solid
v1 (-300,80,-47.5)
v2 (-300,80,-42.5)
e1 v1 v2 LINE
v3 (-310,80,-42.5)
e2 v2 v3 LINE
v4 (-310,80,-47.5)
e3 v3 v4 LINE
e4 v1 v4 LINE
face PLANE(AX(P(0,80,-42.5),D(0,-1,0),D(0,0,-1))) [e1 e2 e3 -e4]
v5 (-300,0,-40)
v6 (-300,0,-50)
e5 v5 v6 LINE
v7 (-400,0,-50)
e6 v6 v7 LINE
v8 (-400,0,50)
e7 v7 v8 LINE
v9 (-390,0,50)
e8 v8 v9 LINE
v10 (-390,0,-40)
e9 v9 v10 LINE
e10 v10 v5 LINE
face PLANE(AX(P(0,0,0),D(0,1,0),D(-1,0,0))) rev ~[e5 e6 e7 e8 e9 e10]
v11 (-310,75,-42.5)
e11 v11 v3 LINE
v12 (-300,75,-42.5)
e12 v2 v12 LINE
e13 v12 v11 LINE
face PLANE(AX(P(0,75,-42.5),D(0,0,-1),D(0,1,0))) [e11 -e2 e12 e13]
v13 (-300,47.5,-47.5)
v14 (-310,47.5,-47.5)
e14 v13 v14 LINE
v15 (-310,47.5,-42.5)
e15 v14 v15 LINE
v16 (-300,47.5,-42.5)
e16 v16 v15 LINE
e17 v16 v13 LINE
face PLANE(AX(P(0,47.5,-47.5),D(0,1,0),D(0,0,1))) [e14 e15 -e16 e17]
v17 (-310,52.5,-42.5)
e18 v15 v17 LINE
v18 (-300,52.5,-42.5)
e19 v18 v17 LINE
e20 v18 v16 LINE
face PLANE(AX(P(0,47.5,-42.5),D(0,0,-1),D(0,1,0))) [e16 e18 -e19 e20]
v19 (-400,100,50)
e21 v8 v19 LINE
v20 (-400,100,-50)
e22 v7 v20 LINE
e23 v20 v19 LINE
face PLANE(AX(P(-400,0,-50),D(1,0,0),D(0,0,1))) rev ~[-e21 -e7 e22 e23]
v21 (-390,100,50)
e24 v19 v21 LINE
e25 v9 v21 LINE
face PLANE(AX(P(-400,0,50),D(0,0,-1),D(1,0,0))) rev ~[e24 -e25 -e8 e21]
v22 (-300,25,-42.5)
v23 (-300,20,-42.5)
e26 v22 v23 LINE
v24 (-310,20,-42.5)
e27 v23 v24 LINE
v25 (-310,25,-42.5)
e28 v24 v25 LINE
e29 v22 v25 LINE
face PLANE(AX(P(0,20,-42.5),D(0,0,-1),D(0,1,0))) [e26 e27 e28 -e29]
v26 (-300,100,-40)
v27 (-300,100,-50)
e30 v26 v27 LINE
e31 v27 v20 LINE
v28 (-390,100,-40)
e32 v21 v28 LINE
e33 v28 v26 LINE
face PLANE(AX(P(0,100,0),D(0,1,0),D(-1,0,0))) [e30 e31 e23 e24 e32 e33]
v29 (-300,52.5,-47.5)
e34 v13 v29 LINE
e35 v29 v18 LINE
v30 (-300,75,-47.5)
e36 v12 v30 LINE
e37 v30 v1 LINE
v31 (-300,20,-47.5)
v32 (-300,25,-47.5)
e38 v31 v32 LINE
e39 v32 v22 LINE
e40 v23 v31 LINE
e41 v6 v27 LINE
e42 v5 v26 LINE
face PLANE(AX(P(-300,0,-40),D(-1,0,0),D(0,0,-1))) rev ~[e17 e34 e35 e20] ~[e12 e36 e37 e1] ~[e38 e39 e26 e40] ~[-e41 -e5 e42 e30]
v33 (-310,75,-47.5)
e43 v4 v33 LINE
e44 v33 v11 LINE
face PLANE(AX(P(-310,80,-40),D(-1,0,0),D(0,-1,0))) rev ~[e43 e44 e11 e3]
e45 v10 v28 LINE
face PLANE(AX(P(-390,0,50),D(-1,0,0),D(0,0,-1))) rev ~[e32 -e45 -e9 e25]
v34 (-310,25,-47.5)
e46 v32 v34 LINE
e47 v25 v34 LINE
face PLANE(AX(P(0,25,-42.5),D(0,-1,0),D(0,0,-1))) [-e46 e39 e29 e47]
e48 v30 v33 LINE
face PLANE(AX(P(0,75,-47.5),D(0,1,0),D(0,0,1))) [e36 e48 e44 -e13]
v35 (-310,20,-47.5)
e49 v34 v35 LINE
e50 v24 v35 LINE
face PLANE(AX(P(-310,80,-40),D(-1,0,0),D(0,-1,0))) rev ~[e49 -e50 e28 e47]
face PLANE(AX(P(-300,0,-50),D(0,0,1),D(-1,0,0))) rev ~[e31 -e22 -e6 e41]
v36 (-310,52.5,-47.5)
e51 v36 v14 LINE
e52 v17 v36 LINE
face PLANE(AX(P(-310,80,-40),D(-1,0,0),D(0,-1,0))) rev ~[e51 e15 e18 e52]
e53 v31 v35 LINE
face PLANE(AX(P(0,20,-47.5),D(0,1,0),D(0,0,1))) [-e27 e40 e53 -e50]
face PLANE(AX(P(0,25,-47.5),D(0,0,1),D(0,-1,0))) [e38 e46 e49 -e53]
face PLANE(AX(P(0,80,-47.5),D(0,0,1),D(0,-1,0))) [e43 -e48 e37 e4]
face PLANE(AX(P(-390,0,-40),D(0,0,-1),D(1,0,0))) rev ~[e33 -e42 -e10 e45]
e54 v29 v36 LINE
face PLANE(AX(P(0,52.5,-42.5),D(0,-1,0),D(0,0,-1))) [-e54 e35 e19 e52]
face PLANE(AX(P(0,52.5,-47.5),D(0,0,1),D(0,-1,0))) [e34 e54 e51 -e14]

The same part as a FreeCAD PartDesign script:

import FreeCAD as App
import Part
import Sketcher
from FreeCAD import Vector


def add_polygon(sketch, points):
    """Adds a closed chain of lines whose ends are joined by coincident constraints."""
    first, n = sketch.GeometryCount, len(points)
    for a, b in zip(points, points[1:] + points[:1]):
        sketch.addGeometry(Part.LineSegment(App.Vector(*a, 0), App.Vector(*b, 0)), False)
    for i in range(n):
        sketch.addConstraint(Sketcher.Constraint("Coincident", first + i, 2, first + (i + 1) % n, 1))

doc = App.newDocument("Part")
body = doc.addObject("PartDesign::Body", "Body")
body.AllowCompound = True

# Sketch on XZ plane
sketch1 = body.newObject("Sketcher::SketchObject", "Sketch")
sketch1.AttachmentSupport = (doc.getObject("XZ_Plane"), [""])
sketch1.MapMode = "FlatFace"
add_polygon(sketch1, [(-300, -50), (-400, -50), (-400, 50), (-390, 50), (-390, -40), (-300, -40)])  # lines 0-5
add_polygon(sketch1, [(-150, -50), (-250, -50), (-250, -40), (-150, -40)])  # lines 6-9
add_polygon(sketch1, [(0, -50), (-100, -50), (-100, -40), (-10, -40), (-10, 50), (0, 50)])  # lines 10-15
sketch1.addConstraint([
    Sketcher.Constraint("Horizontal", 0),
    Sketcher.Constraint("Vertical", 1),
    Sketcher.Constraint("Horizontal", 2),
    Sketcher.Constraint("Vertical", 3),
    Sketcher.Constraint("Horizontal", 4),
    Sketcher.Constraint("Vertical", 5),
    Sketcher.Constraint("Horizontal", 6),
    Sketcher.Constraint("Vertical", 7),
    Sketcher.Constraint("Horizontal", 8),
    Sketcher.Constraint("Vertical", 9),
    Sketcher.Constraint("Horizontal", 10),
    Sketcher.Constraint("Vertical", 11),
    Sketcher.Constraint("Horizontal", 12),
    Sketcher.Constraint("Vertical", 13),
    Sketcher.Constraint("Horizontal", 14),
    Sketcher.Constraint("Vertical", 15),
    Sketcher.Constraint("Symmetric", 14, 2, 15, 2, -1, 1),
    Sketcher.Constraint("Horizontal", 5, 2, 6, 2),
    Sketcher.Constraint("Horizontal", 4, 2, 7, 2),
    Sketcher.Constraint("Horizontal", 9, 2, 10, 2),
    Sketcher.Constraint("Horizontal", 8, 2, 11, 2),
    Sketcher.Constraint("Horizontal", 2, 2, 13, 2),
    Sketcher.Constraint("Equal", 0, 6),
    Sketcher.Constraint("Equal", 8, 10),
    Sketcher.Constraint("Equal", 4, 12),
    Sketcher.Constraint("Equal", 10, 1),
    Sketcher.Constraint("Equal", 12, 3),
    Sketcher.Constraint("DistanceX", 0, 2, 0, 1, 100.0),
    Sketcher.Constraint("DistanceX", 2, 1, 2, 2, 10.0),
    Sketcher.Constraint("DistanceX", 0, 2, -1, 1, 400.0),
    Sketcher.Constraint("DistanceX", 5, 2, 6, 2, 50.0),
])
pad1 = body.newObject("PartDesign::Pad", "Pad")
pad1.Profile = sketch1
pad1.Length = 100
pad1.Reversed = True

# Sketch on YZ plane
sketch2 = body.newObject("Sketcher::SketchObject", "Sketch001")
sketch2.AttachmentSupport = (doc.getObject("YZ_Plane"), [""])
sketch2.MapMode = "FlatFace"
add_polygon(sketch2, [(80, -48), (80, -42), (75, -42), (75, -48)])  # lines 0-3
add_polygon(sketch2, [(20, -42), (20, -48), (25, -48), (25, -42)])  # lines 4-7
add_polygon(sketch2, [(52, -48), (52, -42), (48, -42), (48, -48)])  # lines 8-11
sketch2.addConstraint([
    Sketcher.Constraint("Vertical", 0),
    Sketcher.Constraint("Horizontal", 1),
    Sketcher.Constraint("Vertical", 2),
    Sketcher.Constraint("Horizontal", 3),
    Sketcher.Constraint("Vertical", 4),
    Sketcher.Constraint("Horizontal", 5),
    Sketcher.Constraint("Vertical", 6),
    Sketcher.Constraint("Horizontal", 7),
    Sketcher.Constraint("Vertical", 8),
    Sketcher.Constraint("Horizontal", 9),
    Sketcher.Constraint("Vertical", 10),
    Sketcher.Constraint("Horizontal", 11),
    Sketcher.Constraint("Horizontal", 3, 2, 4, 2),
    Sketcher.Constraint("Horizontal", 1, 2, 6, 2),
    Sketcher.Constraint("Horizontal", 7, 2, 8, 2),
    Sketcher.Constraint("Horizontal", 5, 2, 10, 2),
    Sketcher.Constraint("Equal", 3, 5),
    Sketcher.Constraint("Equal", 7, 9),
    Sketcher.Constraint("Equal", 11, 0),
    Sketcher.Constraint("DistanceX", 1, 2, 1, 1, 5.0),
    Sketcher.Constraint("DistanceX", -1, 1, 4, 2, 20.0),
    Sketcher.Constraint("DistanceX", 8, 2, 1, 2, 22.5),
    Sketcher.Constraint("DistanceX", 6, 2, 9, 2, 22.5),
    Sketcher.Constraint("DistanceY", 0, 2, -1, 1, 42.5),
])
pocket1 = body.newObject("PartDesign::Pocket", "Pocket")
pocket1.Profile = sketch2
pocket1.Length = 320

# Sketch on YZ plane
sketch3 = body.newObject("Sketcher::SketchObject", "Sketch002")
sketch3.AttachmentSupport = (doc.getObject("YZ_Plane"), [""])
sketch3.MapMode = "FlatFace"
add_polygon(sketch3, [(75, -42), (75, -48), (80, -48), (80, -42)])  # lines 0-3
add_polygon(sketch3, [(48, -42), (48, -48), (52, -48), (52, -42)])  # lines 4-7
add_polygon(sketch3, [(25, -48), (25, -42), (20, -42), (20, -48)])  # lines 8-11
sketch3.addConstraint([
    Sketcher.Constraint("Vertical", 0),
    Sketcher.Constraint("Horizontal", 1),
    Sketcher.Constraint("Vertical", 2),
    Sketcher.Constraint("Horizontal", 3),
    Sketcher.Constraint("Vertical", 4),
    Sketcher.Constraint("Horizontal", 5),
    Sketcher.Constraint("Vertical", 6),
    Sketcher.Constraint("Horizontal", 7),
    Sketcher.Constraint("Vertical", 8),
    Sketcher.Constraint("Horizontal", 9),
    Sketcher.Constraint("Vertical", 10),
    Sketcher.Constraint("Horizontal", 11),
    Sketcher.Constraint("Horizontal", 1, 2, 4, 2),
    Sketcher.Constraint("Horizontal", 3, 2, 6, 2),
    Sketcher.Constraint("Horizontal", 7, 2, 8, 2),
    Sketcher.Constraint("Horizontal", 5, 2, 10, 2),
    Sketcher.Constraint("Equal", 3, 5),
    Sketcher.Constraint("Equal", 7, 9),
    Sketcher.Constraint("Equal", 11, 0),
    Sketcher.Constraint("DistanceX", 1, 1, 1, 2, 5.0),
    Sketcher.Constraint("DistanceX", -1, 1, 0, 2, 75.0),
    Sketcher.Constraint("DistanceX", -1, 1, 8, 2, 25.0),
    Sketcher.Constraint("DistanceY", 0, 2, -1, 1, 47.5),
    Sketcher.Constraint("DistanceX", -1, 1, 4, 2, 47.5),
])
pad2 = body.newObject("PartDesign::Pad", "Pad001")
pad2.Profile = sketch3
pad2.Length = 80
pad2.Reversed = True

# Sketch on XY plane
sketch4 = body.newObject("Sketcher::SketchObject", "Sketch003")
sketch4.AttachmentSupport = (doc.getObject("XY_Plane"), [""])
sketch4.MapMode = "FlatFace"
sketch4.AttachmentOffset = App.Placement(Vector(0, 0, -40), App.Rotation())
add_polygon(sketch4, [(-310, 80), (-320, 80), (-320, 20), (-310, 20)])  # lines 0-3
add_polygon(sketch4, [(-240, 80), (-240, 75), (-160, 75), (-160, 80)])  # lines 4-7
add_polygon(sketch4, [(-160, 52), (-240, 52), (-240, 48), (-160, 48)])  # lines 8-11
add_polygon(sketch4, [(-160, 25), (-240, 25), (-240, 20), (-160, 20)])  # lines 12-15
add_polygon(sketch4, [(-90, 80), (-90, 20), (-80, 20), (-80, 80)])  # lines 16-19
sketch4.addConstraint([
    Sketcher.Constraint("Horizontal", 0),
    Sketcher.Constraint("Vertical", 1),
    Sketcher.Constraint("Horizontal", 2),
    Sketcher.Constraint("Vertical", 3),
    Sketcher.Constraint("Vertical", 4),
    Sketcher.Constraint("Horizontal", 5),
    Sketcher.Constraint("Vertical", 6),
    Sketcher.Constraint("Horizontal", 7),
    Sketcher.Constraint("Horizontal", 8),
    Sketcher.Constraint("Vertical", 9),
    Sketcher.Constraint("Horizontal", 10),
    Sketcher.Constraint("Vertical", 11),
    Sketcher.Constraint("Horizontal", 12),
    Sketcher.Constraint("Vertical", 13),
    Sketcher.Constraint("Horizontal", 14),
    Sketcher.Constraint("Vertical", 15),
    Sketcher.Constraint("Vertical", 16),
    Sketcher.Constraint("Horizontal", 17),
    Sketcher.Constraint("Vertical", 18),
    Sketcher.Constraint("Horizontal", 19),
    Sketcher.Constraint("Horizontal", 3, 2, 6, 2),
    Sketcher.Constraint("Horizontal", 2, 2, 13, 2),
    Sketcher.Constraint("Horizontal", 14, 2, 16, 2),
    Sketcher.Constraint("Horizontal", 7, 2, 18, 2),
    Sketcher.Constraint("Vertical", 7, 2, 8, 2),
    Sketcher.Constraint("Vertical", 6, 2, 10, 2),
    Sketcher.Constraint("Vertical", 9, 2, 12, 2),
    Sketcher.Constraint("Vertical", 11, 2, 14, 2),
    Sketcher.Constraint("Equal", 2, 17),
    Sketcher.Constraint("Equal", 6, 9),
    Sketcher.Constraint("Equal", 11, 13),
    Sketcher.Constraint("DistanceX", 0, 2, 0, 1, 10.0),
    Sketcher.Constraint("DistanceX", 5, 1, 5, 2, 80.0),
    Sketcher.Constraint("DistanceY", 1, 2, 1, 1, 60.0),
    Sketcher.Constraint("DistanceY", 4, 2, 4, 1, 5.0),
    Sketcher.Constraint("DistanceX", 0, 2, -1, 1, 320.0),
    Sketcher.Constraint("DistanceY", -1, 1, 0, 2, 80.0),
    Sketcher.Constraint("DistanceX", 4, 2, -1, 1, 240.0),
    Sketcher.Constraint("DistanceX", 16, 2, -1, 1, 90.0),
    Sketcher.Constraint("DistanceY", -1, 1, 8, 2, 52.5),
])
pad3 = body.newObject("PartDesign::Pad", "Pad002")
pad3.Profile = sketch4
pad3.Length = 10
pad3.Reversed = True

# Sketch on XZ plane
sketch5 = body.newObject("Sketcher::SketchObject", "Sketch004")
sketch5.AttachmentSupport = (doc.getObject("XZ_Plane"), [""])
sketch5.MapMode = "FlatFace"
sketch5.AttachmentOffset = App.Placement(Vector(0, 0, -100), App.Rotation())
add_polygon(sketch5, [(0, 50), (0, -50), (-250, -50), (-250, 50)])  # lines 0-3
sketch5.addConstraint([
    Sketcher.Constraint("Vertical", 0),
    Sketcher.Constraint("Horizontal", 1),
    Sketcher.Constraint("Vertical", 2),
    Sketcher.Constraint("Horizontal", 3),
    Sketcher.Constraint("Symmetric", 0, 2, 3, 2, -1, 1),
    Sketcher.Constraint("DistanceY", 0, 2, 0, 1, 100.0),
    Sketcher.Constraint("DistanceX", 1, 2, 1, 1, 250.0),
])
pocket2 = body.newObject("PartDesign::Pocket", "Pocket001")
pocket2.Profile = sketch5
pocket2.Type = "ThroughAll"
pocket2.Reversed = True

doc.recompute()
